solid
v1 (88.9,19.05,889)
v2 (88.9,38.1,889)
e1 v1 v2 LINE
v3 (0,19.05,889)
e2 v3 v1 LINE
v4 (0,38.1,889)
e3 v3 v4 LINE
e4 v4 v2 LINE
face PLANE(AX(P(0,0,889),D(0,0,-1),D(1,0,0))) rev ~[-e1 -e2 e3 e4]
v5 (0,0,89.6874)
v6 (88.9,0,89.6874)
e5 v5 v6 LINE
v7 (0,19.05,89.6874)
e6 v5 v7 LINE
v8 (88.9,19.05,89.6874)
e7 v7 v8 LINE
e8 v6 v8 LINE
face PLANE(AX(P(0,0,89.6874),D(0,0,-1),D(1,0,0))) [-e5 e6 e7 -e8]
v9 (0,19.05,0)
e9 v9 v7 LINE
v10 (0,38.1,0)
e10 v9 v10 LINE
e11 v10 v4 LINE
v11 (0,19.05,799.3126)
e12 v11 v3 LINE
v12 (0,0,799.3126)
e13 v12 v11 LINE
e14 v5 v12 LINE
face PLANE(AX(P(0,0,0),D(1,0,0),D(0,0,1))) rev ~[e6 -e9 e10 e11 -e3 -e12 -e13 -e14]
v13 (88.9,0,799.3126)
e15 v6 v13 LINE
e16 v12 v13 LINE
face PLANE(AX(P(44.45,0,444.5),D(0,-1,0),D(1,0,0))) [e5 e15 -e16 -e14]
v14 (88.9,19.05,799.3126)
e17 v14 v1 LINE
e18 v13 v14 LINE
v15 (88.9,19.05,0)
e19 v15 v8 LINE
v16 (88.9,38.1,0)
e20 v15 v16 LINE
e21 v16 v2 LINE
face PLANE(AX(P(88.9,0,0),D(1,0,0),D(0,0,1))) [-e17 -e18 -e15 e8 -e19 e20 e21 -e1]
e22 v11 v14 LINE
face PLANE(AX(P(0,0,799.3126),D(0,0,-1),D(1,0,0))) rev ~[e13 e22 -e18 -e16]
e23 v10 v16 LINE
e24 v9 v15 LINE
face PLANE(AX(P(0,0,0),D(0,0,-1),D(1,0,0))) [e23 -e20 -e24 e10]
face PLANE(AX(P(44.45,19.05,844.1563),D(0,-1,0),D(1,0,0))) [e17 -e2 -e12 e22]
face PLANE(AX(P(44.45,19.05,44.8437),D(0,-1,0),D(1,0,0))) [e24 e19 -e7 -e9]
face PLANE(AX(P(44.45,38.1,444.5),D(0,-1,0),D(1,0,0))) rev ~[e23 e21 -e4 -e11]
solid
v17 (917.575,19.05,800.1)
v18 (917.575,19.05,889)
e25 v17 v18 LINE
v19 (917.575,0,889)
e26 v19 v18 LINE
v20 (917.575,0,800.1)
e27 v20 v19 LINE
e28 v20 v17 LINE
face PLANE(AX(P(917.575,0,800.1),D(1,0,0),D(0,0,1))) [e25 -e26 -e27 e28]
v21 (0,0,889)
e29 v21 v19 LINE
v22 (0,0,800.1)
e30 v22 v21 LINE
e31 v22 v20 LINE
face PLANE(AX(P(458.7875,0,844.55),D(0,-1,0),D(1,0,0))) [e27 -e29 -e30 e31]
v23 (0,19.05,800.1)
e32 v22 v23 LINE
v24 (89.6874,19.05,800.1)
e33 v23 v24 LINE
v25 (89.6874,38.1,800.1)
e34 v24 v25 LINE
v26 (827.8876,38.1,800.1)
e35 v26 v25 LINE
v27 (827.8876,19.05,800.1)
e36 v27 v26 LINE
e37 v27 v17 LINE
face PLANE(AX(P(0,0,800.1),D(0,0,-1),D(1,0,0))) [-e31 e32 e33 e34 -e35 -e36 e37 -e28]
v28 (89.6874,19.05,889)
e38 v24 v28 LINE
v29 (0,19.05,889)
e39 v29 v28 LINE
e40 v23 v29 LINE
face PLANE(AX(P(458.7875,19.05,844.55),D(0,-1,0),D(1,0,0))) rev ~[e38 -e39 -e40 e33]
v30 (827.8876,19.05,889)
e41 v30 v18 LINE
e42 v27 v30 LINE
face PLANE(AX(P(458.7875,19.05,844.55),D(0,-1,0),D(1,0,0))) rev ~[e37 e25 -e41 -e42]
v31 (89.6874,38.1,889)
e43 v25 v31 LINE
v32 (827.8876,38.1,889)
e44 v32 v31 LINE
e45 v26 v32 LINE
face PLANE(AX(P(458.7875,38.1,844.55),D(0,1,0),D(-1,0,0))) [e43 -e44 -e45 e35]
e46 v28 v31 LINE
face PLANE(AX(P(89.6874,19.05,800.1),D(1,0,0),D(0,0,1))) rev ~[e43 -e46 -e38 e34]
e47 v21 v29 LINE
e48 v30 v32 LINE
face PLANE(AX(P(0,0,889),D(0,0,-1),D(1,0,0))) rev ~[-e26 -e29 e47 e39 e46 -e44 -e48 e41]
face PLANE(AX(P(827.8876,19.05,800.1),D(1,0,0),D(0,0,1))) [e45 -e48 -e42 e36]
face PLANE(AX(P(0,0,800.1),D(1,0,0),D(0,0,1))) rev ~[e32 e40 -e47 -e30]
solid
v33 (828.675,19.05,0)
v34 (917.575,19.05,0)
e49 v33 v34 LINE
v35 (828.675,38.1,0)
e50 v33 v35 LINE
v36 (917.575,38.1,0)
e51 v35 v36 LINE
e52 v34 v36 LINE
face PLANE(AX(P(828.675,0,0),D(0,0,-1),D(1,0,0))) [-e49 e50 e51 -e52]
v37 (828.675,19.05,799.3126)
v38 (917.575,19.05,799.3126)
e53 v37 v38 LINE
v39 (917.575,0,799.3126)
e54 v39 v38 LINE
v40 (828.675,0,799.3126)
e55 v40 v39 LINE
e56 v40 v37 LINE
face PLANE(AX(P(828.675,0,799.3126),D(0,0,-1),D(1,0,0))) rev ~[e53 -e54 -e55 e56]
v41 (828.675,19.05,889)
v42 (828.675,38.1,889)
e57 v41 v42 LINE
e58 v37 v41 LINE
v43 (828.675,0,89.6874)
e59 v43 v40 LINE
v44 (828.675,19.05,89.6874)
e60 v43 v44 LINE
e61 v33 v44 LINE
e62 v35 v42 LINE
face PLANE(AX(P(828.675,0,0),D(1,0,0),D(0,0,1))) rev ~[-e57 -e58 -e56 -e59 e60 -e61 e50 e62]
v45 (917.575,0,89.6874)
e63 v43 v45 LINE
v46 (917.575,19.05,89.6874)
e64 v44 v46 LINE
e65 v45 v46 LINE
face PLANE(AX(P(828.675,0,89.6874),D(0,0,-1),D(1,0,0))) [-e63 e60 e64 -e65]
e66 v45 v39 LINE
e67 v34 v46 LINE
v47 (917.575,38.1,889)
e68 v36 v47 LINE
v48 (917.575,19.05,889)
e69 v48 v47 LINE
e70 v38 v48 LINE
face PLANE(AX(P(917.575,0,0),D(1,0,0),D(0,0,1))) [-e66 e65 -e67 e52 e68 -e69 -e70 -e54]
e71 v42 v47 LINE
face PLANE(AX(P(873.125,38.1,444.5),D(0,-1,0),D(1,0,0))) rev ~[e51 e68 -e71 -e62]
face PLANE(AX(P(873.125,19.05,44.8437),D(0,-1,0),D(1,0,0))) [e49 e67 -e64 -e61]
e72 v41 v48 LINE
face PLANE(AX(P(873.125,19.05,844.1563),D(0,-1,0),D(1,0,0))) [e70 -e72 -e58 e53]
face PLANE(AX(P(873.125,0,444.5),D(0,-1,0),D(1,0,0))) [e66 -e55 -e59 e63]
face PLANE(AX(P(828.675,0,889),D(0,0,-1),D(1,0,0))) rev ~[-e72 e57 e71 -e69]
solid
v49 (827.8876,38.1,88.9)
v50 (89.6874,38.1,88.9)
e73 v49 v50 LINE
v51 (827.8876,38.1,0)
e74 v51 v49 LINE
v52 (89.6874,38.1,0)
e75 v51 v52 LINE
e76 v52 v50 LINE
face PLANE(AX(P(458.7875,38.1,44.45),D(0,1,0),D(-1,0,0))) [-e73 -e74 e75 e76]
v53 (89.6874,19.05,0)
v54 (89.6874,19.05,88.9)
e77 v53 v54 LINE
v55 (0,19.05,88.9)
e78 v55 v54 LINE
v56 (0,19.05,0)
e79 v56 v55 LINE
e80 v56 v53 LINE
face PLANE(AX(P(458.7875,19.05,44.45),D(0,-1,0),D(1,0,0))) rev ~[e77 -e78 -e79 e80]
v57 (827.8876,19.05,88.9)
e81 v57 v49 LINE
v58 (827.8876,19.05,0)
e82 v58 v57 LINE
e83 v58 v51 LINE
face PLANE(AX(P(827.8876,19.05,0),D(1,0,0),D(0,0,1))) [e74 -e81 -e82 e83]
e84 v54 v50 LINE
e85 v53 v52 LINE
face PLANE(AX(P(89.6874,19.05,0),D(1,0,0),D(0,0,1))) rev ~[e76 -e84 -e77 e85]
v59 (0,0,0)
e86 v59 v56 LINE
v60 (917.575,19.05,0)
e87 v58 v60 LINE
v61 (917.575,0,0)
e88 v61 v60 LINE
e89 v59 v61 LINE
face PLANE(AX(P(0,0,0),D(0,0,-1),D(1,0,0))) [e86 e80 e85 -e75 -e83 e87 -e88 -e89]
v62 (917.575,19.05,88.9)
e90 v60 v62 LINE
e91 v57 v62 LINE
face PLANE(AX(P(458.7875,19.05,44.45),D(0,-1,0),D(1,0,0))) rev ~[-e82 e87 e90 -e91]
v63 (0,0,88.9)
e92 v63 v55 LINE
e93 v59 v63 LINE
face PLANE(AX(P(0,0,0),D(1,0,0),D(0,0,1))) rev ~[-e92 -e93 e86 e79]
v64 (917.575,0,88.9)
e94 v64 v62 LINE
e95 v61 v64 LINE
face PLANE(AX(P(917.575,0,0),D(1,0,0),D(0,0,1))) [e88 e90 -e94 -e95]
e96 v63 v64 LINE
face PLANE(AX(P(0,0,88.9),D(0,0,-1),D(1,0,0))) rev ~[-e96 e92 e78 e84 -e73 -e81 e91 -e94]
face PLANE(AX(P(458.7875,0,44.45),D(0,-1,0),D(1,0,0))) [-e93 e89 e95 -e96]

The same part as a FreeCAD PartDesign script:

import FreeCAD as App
import Part
import Sketcher
Q = App.Units.Quantity


def add_polygon(sketch, points):
    """Adds a closed chain of lines whose ends are joined by coincident constraints."""
    first, n = sketch.GeometryCount, len(points)
    for a, b in zip(points, points[1:] + points[:1]):
        sketch.addGeometry(Part.LineSegment(App.Vector(*a, 0), App.Vector(*b, 0)), False)
    for i in range(n):
        sketch.addConstraint(Sketcher.Constraint("Coincident", first + i, 2, first + (i + 1) % n, 1))

doc = App.newDocument("Part")
params = doc.addObject("Spreadsheet::Sheet", "Params")
for row, (alias, value) in enumerate([
    ("sketch1_height", "35 in"),
    ("sketch1_width", "3.5 in"),
    ("pad1_length", "1.5 in"),
    ("sketch2_width", "3.5 in"),
    ("sketch2_height", "3.531 in"),
    ("pocket1_length", "0.75 in"),
    ("sketch3_width", "3.5 in"),
    ("sketch3_height", "3.531 in"),
    ("pocket2_length", "0.75 in"),
    ("sketch4_height", "35 in"),
    ("sketch4_width", "3.5 in"),
    ("pad2_length", "1.5 in"),
    ("sketch5_width", "3.5 in"),
    ("sketch5_height", "3.531 in"),
    ("pocket3_length", "0.75 in"),
    ("sketch6_height", "3.5 in"),
    ("sketch6_width", "36.125 in"),
    ("pad3_length", "0.75 in"),
    ("sketch7_height", "3.5 in"),
    ("sketch7_width", "29.063 in"),
    ("pad4_length", "0.75 in"),
    ("sketch8_height", "3.5 in"),
    ("sketch8_width", "36.125 in"),
    ("pad5_length", "0.75 in"),
    ("sketch9_height", "3.5 in"),
    ("sketch9_width", "29.063 in"),
    ("pad6_length", "0.75 in"),
], start=1):
    params.set(f"A{row}", alias)
    params.set(f"B{row}", "=" + value)
    params.setAlias(f"B{row}", alias)

body = doc.addObject("PartDesign::Body", "Body")

# Sketch on XZ plane
sketch1 = body.newObject("Sketcher::SketchObject", "Sketch")
sketch1.AttachmentSupport = (doc.getObject("XZ_Plane"), [""])
sketch1.MapMode = "FlatFace"
add_polygon(sketch1, [(0, 889), (0, 0), (89, 0), (89, 889)])  # lines 0-3
sketch1.addConstraint([
    Sketcher.Constraint("Vertical", 0),
    Sketcher.Constraint("Horizontal", 1),
    Sketcher.Constraint("Vertical", 2),
    Sketcher.Constraint("Horizontal", 3),
    Sketcher.Constraint("Coincident", 0, 2, -1, 1),
    Sketcher.Constraint("DistanceY", 0, 2, 0, 1, Q("35 in")),
    Sketcher.Constraint("DistanceX", 1, 1, 1, 2, Q("3.5 in")),
])
sketch1.setExpression("Constraints[9]", "Params.sketch1_height")
sketch1.setExpression("Constraints[10]", "Params.sketch1_width")
pad1 = body.newObject("PartDesign::Pad", "Pad")
pad1.Profile = sketch1
pad1.setExpression("Length", "Params.pad1_length")
pad1.Reversed = True

# Sketch on XZ plane
sketch2 = body.newObject("Sketcher::SketchObject", "Sketch001")
sketch2.AttachmentSupport = (doc.getObject("XZ_Plane"), [""])
sketch2.MapMode = "FlatFace"
add_polygon(sketch2, [(0, 889), (0, 799), (89, 799), (89, 889)])  # lines 0-3
sketch2.addConstraint([
    Sketcher.Constraint("Vertical", 0),
    Sketcher.Constraint("Horizontal", 1),
    Sketcher.Constraint("Vertical", 2),
    Sketcher.Constraint("Horizontal", 3),
    Sketcher.Constraint("PointOnObject", 0, 2, -2),
    Sketcher.Constraint("DistanceX", 1, 1, 1, 2, Q("3.5 in")),
    Sketcher.Constraint("DistanceY", -1, 1, 2, 2, Q("35 in")),
    Sketcher.Constraint("DistanceY", 0, 2, 0, 1, Q("3.531 in")),
])
sketch2.setExpression("Constraints[9]", "Params.sketch2_width")
sketch2.setExpression("Constraints[11]", "Params.sketch2_height")
pocket1 = body.newObject("PartDesign::Pocket", "Pocket")
pocket1.Profile = sketch2
pocket1.setExpression("Length", "Params.pocket1_length")

# Sketch on XZ plane
sketch3 = body.newObject("Sketcher::SketchObject", "Sketch002")
sketch3.AttachmentSupport = (doc.getObject("XZ_Plane"), [""])
sketch3.MapMode = "FlatFace"
add_polygon(sketch3, [(0, 90), (0, 0), (89, 0), (89, 90)])  # lines 0-3
sketch3.addConstraint([
    Sketcher.Constraint("Vertical", 0),
    Sketcher.Constraint("Horizontal", 1),
    Sketcher.Constraint("Vertical", 2),
    Sketcher.Constraint("Horizontal", 3),
    Sketcher.Constraint("Coincident", 0, 2, -1, 1),
    Sketcher.Constraint("DistanceX", 1, 1, 1, 2, Q("3.5 in")),
    Sketcher.Constraint("DistanceY", 0, 2, 0, 1, Q("3.531 in")),
])
sketch3.setExpression("Constraints[9]", "Params.sketch3_width")
sketch3.setExpression("Constraints[10]", "Params.sketch3_height")
pocket2 = body.newObject("PartDesign::Pocket", "Pocket001")
pocket2.Profile = sketch3
pocket2.setExpression("Length", "Params.pocket2_length")
body2 = doc.addObject("PartDesign::Body", "Body001")

# Sketch on XZ plane
sketch4 = body2.newObject("Sketcher::SketchObject", "Sketch003")
sketch4.AttachmentSupport = (doc.getObject("XZ_Plane001"), [""])
sketch4.MapMode = "FlatFace"
add_polygon(sketch4, [(829, 889), (829, 0), (918, 0), (918, 889)])  # lines 0-3
sketch4.addConstraint([
    Sketcher.Constraint("Vertical", 0),
    Sketcher.Constraint("Horizontal", 1),
    Sketcher.Constraint("Vertical", 2),
    Sketcher.Constraint("Horizontal", 3),
    Sketcher.Constraint("PointOnObject", 0, 2, -1),
    Sketcher.Constraint("DistanceY", 0, 2, 0, 1, Q("35 in")),
    Sketcher.Constraint("DistanceX", 1, 1, 1, 2, Q("3.5 in")),
    Sketcher.Constraint("DistanceX", -1, 1, 0, 2, Q("32.625 in")),
])
sketch4.setExpression("Constraints[9]", "Params.sketch4_height")
sketch4.setExpression("Constraints[10]", "Params.sketch4_width")
pad2 = body2.newObject("PartDesign::Pad", "Pad001")
pad2.Profile = sketch4
pad2.setExpression("Length", "Params.pad2_length")
pad2.Reversed = True

# Sketch on XZ plane
sketch5 = body2.newObject("Sketcher::SketchObject", "Sketch004")
sketch5.AttachmentSupport = (doc.getObject("XZ_Plane001"), [""])
sketch5.MapMode = "FlatFace"
add_polygon(sketch5, [(829, 889), (829, 799), (918, 799), (918, 889)])  # lines 0-3
add_polygon(sketch5, [(829, 90), (829, 0), (918, 0), (918, 90)])  # lines 4-7
sketch5.addConstraint([
    Sketcher.Constraint("Vertical", 0),
    Sketcher.Constraint("Horizontal", 1),
    Sketcher.Constraint("Vertical", 2),
    Sketcher.Constraint("Horizontal", 3),
    Sketcher.Constraint("Vertical", 4),
    Sketcher.Constraint("Horizontal", 5),
    Sketcher.Constraint("Vertical", 6),
    Sketcher.Constraint("Horizontal", 7),
    Sketcher.Constraint("PointOnObject", 4, 2, -1),
    Sketcher.Constraint("Vertical", 3, 2, 4, 2),
    Sketcher.Constraint("Vertical", 2, 2, 5, 2),
    Sketcher.Constraint("Equal", 2, 4),
    Sketcher.Constraint("DistanceX", 1, 1, 1, 2, Q("3.5 in")),
    Sketcher.Constraint("DistanceY", -1, 1, 2, 2, Q("35 in")),
    Sketcher.Constraint("DistanceY", 0, 2, 0, 1, Q("3.531 in")),
    Sketcher.Constraint("DistanceX", -1, 1, 0, 2, Q("32.625 in")),
])
sketch5.setExpression("Constraints[20]", "Params.sketch5_width")
sketch5.setExpression("Constraints[22]", "Params.sketch5_height")
pocket3 = body2.newObject("PartDesign::Pocket", "Pocket002")
pocket3.Profile = sketch5
pocket3.setExpression("Length", "Params.pocket3_length")
body3 = doc.addObject("PartDesign::Body", "Body002")

# Sketch on XZ plane
sketch6 = body3.newObject("Sketcher::SketchObject", "Sketch005")
sketch6.AttachmentSupport = (doc.getObject("XZ_Plane002"), [""])
sketch6.MapMode = "FlatFace"
add_polygon(sketch6, [(0, 889), (0, 800), (918, 800), (918, 889)])  # lines 0-3
sketch6.addConstraint([
    Sketcher.Constraint("Vertical", 0),
    Sketcher.Constraint("Horizontal", 1),
    Sketcher.Constraint("Vertical", 2),
    Sketcher.Constraint("Horizontal", 3),
    Sketcher.Constraint("PointOnObject", 0, 2, -2),
    Sketcher.Constraint("DistanceY", 0, 2, 0, 1, Q("3.5 in")),
    Sketcher.Constraint("DistanceY", -1, 1, 2, 2, Q("35 in")),
    Sketcher.Constraint("DistanceX", 1, 1, 1, 2, Q("36.125 in")),
])
sketch6.setExpression("Constraints[9]", "Params.sketch6_height")
sketch6.setExpression("Constraints[11]", "Params.sketch6_width")
pad3 = body3.newObject("PartDesign::Pad", "Pad002")
pad3.Profile = sketch6
pad3.setExpression("Length", "Params.pad3_length")
pad3.Reversed = True

# Sketch on XZ plane
sketch7 = body3.newObject("Sketcher::SketchObject", "Sketch006")
sketch7.AttachmentSupport = (doc.getObject("XZ_Plane002"), [""])
sketch7.MapMode = "FlatFace"
sketch7.AttachmentOffset = App.Placement(App.Vector(0, 0, -0.75 * 25.4), App.Rotation())
add_polygon(sketch7, [(828, 889), (828, 800), (90, 800), (90, 889)])  # lines 0-3
sketch7.addConstraint([
    Sketcher.Constraint("Vertical", 0),
    Sketcher.Constraint("Horizontal", 1),
    Sketcher.Constraint("Vertical", 2),
    Sketcher.Constraint("Horizontal", 3),
    Sketcher.Constraint("DistanceY", 0, 2, 0, 1, Q("3.5 in")),
    Sketcher.Constraint("DistanceY", -1, 1, 2, 2, Q("35 in")),
    Sketcher.Constraint("DistanceX", 1, 2, 1, 1, Q("29.063 in")),
    Sketcher.Constraint("DistanceX", -1, 1, 0, 2, Q("32.594 in")),
])
sketch7.setExpression("Constraints[8]", "Params.sketch7_height")
sketch7.setExpression("Constraints[10]", "Params.sketch7_width")
pad4 = body3.newObject("PartDesign::Pad", "Pad003")
pad4.Profile = sketch7
pad4.setExpression("Length", "Params.pad4_length")
pad4.Reversed = True
body4 = doc.addObject("PartDesign::Body", "Body003")

# Sketch on XZ plane
sketch8 = body4.newObject("Sketcher::SketchObject", "Sketch007")
sketch8.AttachmentSupport = (doc.getObject("XZ_Plane003"), [""])
sketch8.MapMode = "FlatFace"
add_polygon(sketch8, [(0, 89), (0, 0), (918, 0), (918, 89)])  # lines 0-3
sketch8.addConstraint([
    Sketcher.Constraint("Vertical", 0),
    Sketcher.Constraint("Horizontal", 1),
    Sketcher.Constraint("Vertical", 2),
    Sketcher.Constraint("Horizontal", 3),
    Sketcher.Constraint("Coincident", 0, 2, -1, 1),
    Sketcher.Constraint("DistanceY", 0, 2, 0, 1, Q("3.5 in")),
    Sketcher.Constraint("DistanceX", 1, 1, 1, 2, Q("36.125 in")),
])
sketch8.setExpression("Constraints[9]", "Params.sketch8_height")
sketch8.setExpression("Constraints[10]", "Params.sketch8_width")
pad5 = body4.newObject("PartDesign::Pad", "Pad004")
pad5.Profile = sketch8
pad5.setExpression("Length", "Params.pad5_length")
pad5.Reversed = True

# Sketch on XZ plane
sketch9 = body4.newObject("Sketcher::SketchObject", "Sketch008")
sketch9.AttachmentSupport = (doc.getObject("XZ_Plane003"), [""])
sketch9.MapMode = "FlatFace"
sketch9.AttachmentOffset = App.Placement(App.Vector(0, 0, -0.75 * 25.4), App.Rotation())
add_polygon(sketch9, [(828, 89), (828, 0), (90, 0), (90, 89)])  # lines 0-3
sketch9.addConstraint([
    Sketcher.Constraint("Vertical", 0),
    Sketcher.Constraint("Horizontal", 1),
    Sketcher.Constraint("Vertical", 2),
    Sketcher.Constraint("Horizontal", 3),
    Sketcher.Constraint("PointOnObject", 0, 2, -1),
    Sketcher.Constraint("DistanceY", 0, 2, 0, 1, Q("3.5 in")),
    Sketcher.Constraint("DistanceX", 1, 2, 1, 1, Q("29.063 in")),
    Sketcher.Constraint("DistanceX", -1, 1, 0, 2, Q("32.594 in")),
])
sketch9.setExpression("Constraints[9]", "Params.sketch9_height")
sketch9.setExpression("Constraints[10]", "Params.sketch9_width")
pad6 = body4.newObject("PartDesign::Pad", "Pad005")
pad6.Profile = sketch9
pad6.setExpression("Length", "Params.pad6_length")
pad6.Reversed = True

doc.recompute()
